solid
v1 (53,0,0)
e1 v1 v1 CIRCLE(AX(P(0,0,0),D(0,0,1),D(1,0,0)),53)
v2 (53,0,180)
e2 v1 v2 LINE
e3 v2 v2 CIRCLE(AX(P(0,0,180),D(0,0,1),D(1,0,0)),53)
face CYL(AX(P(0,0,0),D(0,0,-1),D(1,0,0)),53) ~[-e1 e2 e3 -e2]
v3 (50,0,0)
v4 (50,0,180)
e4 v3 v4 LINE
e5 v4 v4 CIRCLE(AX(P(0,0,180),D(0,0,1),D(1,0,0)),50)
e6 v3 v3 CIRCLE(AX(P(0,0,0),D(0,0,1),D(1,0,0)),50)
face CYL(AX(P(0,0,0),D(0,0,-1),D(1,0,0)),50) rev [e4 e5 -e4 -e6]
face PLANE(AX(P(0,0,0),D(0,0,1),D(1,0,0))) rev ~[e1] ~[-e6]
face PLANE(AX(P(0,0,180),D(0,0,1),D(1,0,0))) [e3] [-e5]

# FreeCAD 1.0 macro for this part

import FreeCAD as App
import Part
import Sketcher

V = App.Vector
Q = App.Units.Quantity

doc = App.newDocument("Part")
body = doc.addObject("PartDesign::Body", "Body")

# Sketch on XY plane
sketch1 = body.newObject("Sketcher::SketchObject", "Sketch")
sketch1.AttachmentSupport = (doc.getObject("XY_Plane"), [""])
sketch1.MapMode = "FlatFace"
sketch1.addGeometry(Part.Circle(V(0, 0, 0), V(0, 0, 1), 53), False)
sketch1.addGeometry(Part.Circle(V(0, 0, 0), V(0, 0, 1), 50), False)
sketch1.addConstraint(Sketcher.Constraint("Coincident", 0, 3, -1, 1))
sketch1.addConstraint(Sketcher.Constraint("Coincident", 1, 3, -1, 1))
sketch1.addConstraint(Sketcher.Constraint("Diameter", 0, Q("106 mm")))
sketch1.addConstraint(Sketcher.Constraint("Diameter", 1, Q("100 mm")))
pad1 = body.newObject("PartDesign::Pad", "Pad")
pad1.Profile = sketch1
pad1.Length = 180

doc.recompute()
